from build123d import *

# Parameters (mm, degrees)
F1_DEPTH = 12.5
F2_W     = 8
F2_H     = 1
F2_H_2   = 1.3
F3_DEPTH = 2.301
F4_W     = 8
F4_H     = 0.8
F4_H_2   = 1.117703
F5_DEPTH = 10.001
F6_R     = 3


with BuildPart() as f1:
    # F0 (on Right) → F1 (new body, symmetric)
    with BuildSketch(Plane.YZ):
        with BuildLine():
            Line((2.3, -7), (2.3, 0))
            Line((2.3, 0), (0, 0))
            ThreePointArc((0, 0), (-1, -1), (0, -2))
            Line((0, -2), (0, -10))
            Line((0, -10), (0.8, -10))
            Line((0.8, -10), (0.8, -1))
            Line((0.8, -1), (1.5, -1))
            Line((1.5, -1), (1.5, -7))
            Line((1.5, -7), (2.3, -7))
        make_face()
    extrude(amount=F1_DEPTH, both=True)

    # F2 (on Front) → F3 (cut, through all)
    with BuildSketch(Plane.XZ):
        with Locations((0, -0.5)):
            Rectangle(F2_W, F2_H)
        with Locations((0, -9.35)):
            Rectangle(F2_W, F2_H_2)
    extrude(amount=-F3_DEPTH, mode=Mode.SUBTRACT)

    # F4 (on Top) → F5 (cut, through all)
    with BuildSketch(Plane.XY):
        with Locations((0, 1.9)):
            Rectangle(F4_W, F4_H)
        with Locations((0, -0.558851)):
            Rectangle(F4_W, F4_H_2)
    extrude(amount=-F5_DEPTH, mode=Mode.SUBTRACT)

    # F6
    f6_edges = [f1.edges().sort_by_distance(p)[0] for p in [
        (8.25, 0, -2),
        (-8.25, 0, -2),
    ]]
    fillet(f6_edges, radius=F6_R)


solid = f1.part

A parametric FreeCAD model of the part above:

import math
import FreeCAD as App
import Part
import Sketcher
Q = App.Units.Quantity


def edges_at(feature, points):
    """Names of the edges that pass closest to the given points."""
    edges = feature.Shape.Edges
    near = lambda p: min(range(len(edges)), key=lambda i: edges[i].distToShape(Part.Vertex(*p))[0])
    return sorted({f"Edge{near(p) + 1}" for p in points})

doc = App.newDocument("Part")
body = doc.addObject("PartDesign::Body", "Body")

# Sketch on YZ plane
sketch1 = body.newObject("Sketcher::SketchObject", "Sketch")
sketch1.AttachmentSupport = (doc.getObject("YZ_Plane"), [""])
sketch1.MapMode = "FlatFace"
sketch1.addGeometry(Part.LineSegment(App.Vector(2.3, -7, 0), App.Vector(2.3, 0, 0)), False)
sketch1.addGeometry(Part.LineSegment(App.Vector(2.3, 0, 0), App.Vector(0, 0, 0)), False)
sketch1.addGeometry(Part.ArcOfCircle(Part.Circle(App.Vector(0, -1, 0), App.Vector(0, 0, 1), 1), math.radians(90), math.radians(270)), False)
sketch1.addGeometry(Part.LineSegment(App.Vector(0, -2, 0), App.Vector(0, -10, 0)), False)
sketch1.addGeometry(Part.LineSegment(App.Vector(0, -10, 0), App.Vector(0.8, -10, 0)), False)
sketch1.addGeometry(Part.LineSegment(App.Vector(0.8, -10, 0), App.Vector(0.8, -1, 0)), False)
sketch1.addGeometry(Part.LineSegment(App.Vector(0.8, -1, 0), App.Vector(1.5, -1, 0)), False)
sketch1.addGeometry(Part.LineSegment(App.Vector(1.5, -1, 0), App.Vector(1.5, -7, 0)), False)
sketch1.addGeometry(Part.LineSegment(App.Vector(1.5, -7, 0), App.Vector(2.3, -7, 0)), False)
sketch1.addConstraint(Sketcher.Constraint("Coincident", 0, 2, 1, 1))
sketch1.addConstraint(Sketcher.Constraint("Tangent", 1, 2, 2, 1))
sketch1.addConstraint(Sketcher.Constraint("Coincident", 2, 2, 3, 1))
sketch1.addConstraint(Sketcher.Constraint("Coincident", 3, 2, 4, 1))
sketch1.addConstraint(Sketcher.Constraint("Coincident", 4, 2, 5, 1))
sketch1.addConstraint(Sketcher.Constraint("Coincident", 5, 2, 6, 1))
sketch1.addConstraint(Sketcher.Constraint("Coincident", 6, 2, 7, 1))
sketch1.addConstraint(Sketcher.Constraint("Coincident", 7, 2, 8, 1))
sketch1.addConstraint(Sketcher.Constraint("Coincident", 8, 2, 0, 1))
sketch1.addConstraint(Sketcher.Constraint("Vertical", 0))
sketch1.addConstraint(Sketcher.Constraint("Horizontal", 1))
sketch1.addConstraint(Sketcher.Constraint("Vertical", 3))
sketch1.addConstraint(Sketcher.Constraint("Horizontal", 4))
sketch1.addConstraint(Sketcher.Constraint("Vertical", 5))
sketch1.addConstraint(Sketcher.Constraint("Horizontal", 6))
sketch1.addConstraint(Sketcher.Constraint("Vertical", 7))
sketch1.addConstraint(Sketcher.Constraint("Horizontal", 8))
sketch1.addConstraint(Sketcher.Constraint("Coincident", 1, 2, -1, 1))
sketch1.addConstraint(Sketcher.Constraint("PointOnObject", 2, 2, -2))
sketch1.addConstraint(Sketcher.Constraint("Horizontal", 2, 3, 5, 2))
sketch1.addConstraint(Sketcher.Constraint("Equal", 4, 8))
sketch1.addConstraint(Sketcher.Constraint("Radius", 2, Q("1 mm")))
sketch1.addConstraint(Sketcher.Constraint("DistanceY", 0, 1, 0, 2, Q("7 mm")))
sketch1.addConstraint(Sketcher.Constraint("DistanceY", 3, 2, 3, 1, Q("8 mm")))
sketch1.addConstraint(Sketcher.Constraint("DistanceX", 1, 2, 1, 1, Q("2.3 mm")))
sketch1.addConstraint(Sketcher.Constraint("DistanceX", 4, 1, 4, 2, Q("0.8 mm")))
pad1 = body.newObject("PartDesign::Pad", "Pad")
pad1.Profile = sketch1
pad1.Length = 25
pad1.Midplane = True

# Sketch on XZ plane
sketch2 = body.newObject("Sketcher::SketchObject", "Sketch001")
sketch2.AttachmentSupport = (doc.getObject("XZ_Plane"), [""])
sketch2.MapMode = "FlatFace"
sketch2.addGeometry(Part.LineSegment(App.Vector(-4, 0, 0), App.Vector(-4, -1, 0)), False)
sketch2.addGeometry(Part.LineSegment(App.Vector(-4, -1, 0), App.Vector(4, -1, 0)), False)
sketch2.addGeometry(Part.LineSegment(App.Vector(4, -1, 0), App.Vector(4, 0, 0)), False)
sketch2.addGeometry(Part.LineSegment(App.Vector(4, 0, 0), App.Vector(-4, 0, 0)), False)
sketch2.addGeometry(Part.LineSegment(App.Vector(-4, -8.7, 0), App.Vector(-4, -10, 0)), False)
sketch2.addGeometry(Part.LineSegment(App.Vector(-4, -10, 0), App.Vector(4, -10, 0)), False)
sketch2.addGeometry(Part.LineSegment(App.Vector(4, -10, 0), App.Vector(4, -8.7, 0)), False)
sketch2.addGeometry(Part.LineSegment(App.Vector(4, -8.7, 0), App.Vector(-4, -8.7, 0)), False)
sketch2.addConstraint(Sketcher.Constraint("Coincident", 0, 2, 1, 1))
sketch2.addConstraint(Sketcher.Constraint("Coincident", 1, 2, 2, 1))
sketch2.addConstraint(Sketcher.Constraint("Coincident", 2, 2, 3, 1))
sketch2.addConstraint(Sketcher.Constraint("Coincident", 3, 2, 0, 1))
sketch2.addConstraint(Sketcher.Constraint("Coincident", 4, 2, 5, 1))
sketch2.addConstraint(Sketcher.Constraint("Coincident", 5, 2, 6, 1))
sketch2.addConstraint(Sketcher.Constraint("Coincident", 6, 2, 7, 1))
sketch2.addConstraint(Sketcher.Constraint("Coincident", 7, 2, 4, 1))
sketch2.addConstraint(Sketcher.Constraint("Vertical", 0))
sketch2.addConstraint(Sketcher.Constraint("Horizontal", 1))
sketch2.addConstraint(Sketcher.Constraint("Vertical", 2))
sketch2.addConstraint(Sketcher.Constraint("Horizontal", 3))
sketch2.addConstraint(Sketcher.Constraint("Vertical", 4))
sketch2.addConstraint(Sketcher.Constraint("Horizontal", 5))
sketch2.addConstraint(Sketcher.Constraint("Vertical", 6))
sketch2.addConstraint(Sketcher.Constraint("Horizontal", 7))
sketch2.addConstraint(Sketcher.Constraint("Symmetric", 2, 2, 3, 2, -1, 1))
sketch2.addConstraint(Sketcher.Constraint("Vertical", 3, 2, 4, 2))
sketch2.addConstraint(Sketcher.Constraint("Vertical", 2, 2, 5, 2))
sketch2.addConstraint(Sketcher.Constraint("DistanceX", 1, 1, 1, 2, Q("8 mm")))
sketch2.addConstraint(Sketcher.Constraint("DistanceY", 0, 2, 0, 1, Q("1 mm")))
sketch2.addConstraint(Sketcher.Constraint("DistanceY", 4, 2, 4, 1, Q("1.3 mm")))
sketch2.addConstraint(Sketcher.Constraint("DistanceY", 4, 2, -1, 1, Q("10 mm")))
pocket1 = body.newObject("PartDesign::Pocket", "Pocket")
pocket1.Profile = sketch2
pocket1.Type = "ThroughAll"

# Sketch on XY plane
sketch3 = body.newObject("Sketcher::SketchObject", "Sketch002")
sketch3.AttachmentSupport = (doc.getObject("XY_Plane"), [""])
sketch3.MapMode = "FlatFace"
sketch3.addGeometry(Part.LineSegment(App.Vector(-4, 2.3, 0), App.Vector(-4, 1.5, 0)), False)
sketch3.addGeometry(Part.LineSegment(App.Vector(-4, 1.5, 0), App.Vector(4, 1.5, 0)), False)
sketch3.addGeometry(Part.LineSegment(App.Vector(4, 1.5, 0), App.Vector(4, 2.3, 0)), False)
sketch3.addGeometry(Part.LineSegment(App.Vector(4, 2.3, 0), App.Vector(-4, 2.3, 0)), False)
sketch3.addGeometry(Part.LineSegment(App.Vector(-4, 0, 0), App.Vector(-4, -1.1, 0)), False)
sketch3.addGeometry(Part.LineSegment(App.Vector(-4, -1.1, 0), App.Vector(4, -1.1, 0)), False)
sketch3.addGeometry(Part.LineSegment(App.Vector(4, -1.1, 0), App.Vector(4, 0, 0)), False)
sketch3.addGeometry(Part.LineSegment(App.Vector(4, 0, 0), App.Vector(-4, 0, 0)), False)
sketch3.addConstraint(Sketcher.Constraint("Coincident", 0, 2, 1, 1))
sketch3.addConstraint(Sketcher.Constraint("Coincident", 1, 2, 2, 1))
sketch3.addConstraint(Sketcher.Constraint("Coincident", 2, 2, 3, 1))
sketch3.addConstraint(Sketcher.Constraint("Coincident", 3, 2, 0, 1))
sketch3.addConstraint(Sketcher.Constraint("Coincident", 4, 2, 5, 1))
sketch3.addConstraint(Sketcher.Constraint("Coincident", 5, 2, 6, 1))
sketch3.addConstraint(Sketcher.Constraint("Coincident", 6, 2, 7, 1))
sketch3.addConstraint(Sketcher.Constraint("Coincident", 7, 2, 4, 1))
sketch3.addConstraint(Sketcher.Constraint("Vertical", 0))
sketch3.addConstraint(Sketcher.Constraint("Horizontal", 1))
sketch3.addConstraint(Sketcher.Constraint("Vertical", 2))
sketch3.addConstraint(Sketcher.Constraint("Horizontal", 3))
sketch3.addConstraint(Sketcher.Constraint("Vertical", 4))
sketch3.addConstraint(Sketcher.Constraint("Horizontal", 5))
sketch3.addConstraint(Sketcher.Constraint("Vertical", 6))
sketch3.addConstraint(Sketcher.Constraint("Horizontal", 7))
sketch3.addConstraint(Sketcher.Constraint("Symmetric", 6, 2, 7, 2, -1, 1))
sketch3.addConstraint(Sketcher.Constraint("Vertical", 3, 2, 4, 2))
sketch3.addConstraint(Sketcher.Constraint("Vertical", 2, 2, 5, 2))
sketch3.addConstraint(Sketcher.Constraint("DistanceX", 1, 1, 1, 2, Q("8 mm")))
sketch3.addConstraint(Sketcher.Constraint("DistanceY", 0, 2, 0, 1, Q("0.8 mm")))
sketch3.addConstraint(Sketcher.Constraint("DistanceY", -1, 1, 0, 2, Q("1.5 mm")))
sketch3.addConstraint(Sketcher.Constraint("DistanceY", 4, 2, 4, 1, Q("1.117703 mm")))
pocket2 = body.newObject("PartDesign::Pocket", "Pocket001")
pocket2.Profile = sketch3
pocket2.Type = "ThroughAll"
doc.recompute()

fillet = body.newObject("PartDesign::Fillet", "Fillet")
fillet.Base = (pocket2, edges_at(pocket2, [(8.25, 0, -2), (-8.25, 0, -2)]))
fillet.Radius = 3

doc.recompute()
